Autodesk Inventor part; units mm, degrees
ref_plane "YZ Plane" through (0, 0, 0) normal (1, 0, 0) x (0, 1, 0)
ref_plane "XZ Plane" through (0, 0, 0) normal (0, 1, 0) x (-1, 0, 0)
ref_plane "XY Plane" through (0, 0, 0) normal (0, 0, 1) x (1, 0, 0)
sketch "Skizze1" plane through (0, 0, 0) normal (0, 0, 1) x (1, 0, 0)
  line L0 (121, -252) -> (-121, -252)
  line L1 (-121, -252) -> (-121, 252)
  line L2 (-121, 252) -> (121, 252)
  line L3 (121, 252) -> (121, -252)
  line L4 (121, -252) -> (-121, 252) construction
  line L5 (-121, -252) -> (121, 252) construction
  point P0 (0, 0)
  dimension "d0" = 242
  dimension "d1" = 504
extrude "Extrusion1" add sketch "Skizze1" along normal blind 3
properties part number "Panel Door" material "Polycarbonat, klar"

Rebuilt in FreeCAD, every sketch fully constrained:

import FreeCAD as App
import Part
import Sketcher

V = App.Vector

doc = App.newDocument("Part")
params = doc.addObject("Spreadsheet::Sheet", "Params")
for row, (alias, value) in enumerate([
    ("sketch1_width", "242 mm"),
    ("sketch1_height", "504 mm"),
    ("pad1_length", "3 mm"),
], start=1):
    params.set(f"A{row}", alias)
    params.set(f"B{row}", "=" + value)
    params.setAlias(f"B{row}", alias)

body = doc.addObject("PartDesign::Body", "Body")

# Sketch on XY plane
sketch1 = body.newObject("Sketcher::SketchObject", "Sketch")
sketch1.AttachmentSupport = (doc.getObject("XY_Plane"), [""])
sketch1.MapMode = "FlatFace"
sketch1.addGeometry([
    Part.LineSegment(V(-121, -252, 0), V(121, -252, 0)),
    Part.LineSegment(V(121, -252, 0), V(121, 252, 0)),
    Part.LineSegment(V(121, 252, 0), V(-121, 252, 0)),
    Part.LineSegment(V(-121, 252, 0), V(-121, -252, 0)),
], False)
sketch1.addConstraint([
    Sketcher.Constraint("Coincident", 0, 2, 1, 1),
    Sketcher.Constraint("Coincident", 1, 2, 2, 1),
    Sketcher.Constraint("Coincident", 2, 2, 3, 1),
    Sketcher.Constraint("Coincident", 3, 2, 0, 1),
    Sketcher.Constraint("Horizontal", 0),
    Sketcher.Constraint("Vertical", 1),
    Sketcher.Constraint("Horizontal", 2),
    Sketcher.Constraint("Vertical", 3),
    Sketcher.Constraint("Symmetric", 0, 2, 2, 2, -1, 1),
    Sketcher.Constraint("DistanceX", 0, 1, 0, 2, 242.0),
    Sketcher.Constraint("DistanceY", 1, 1, 1, 2, 504.0),
])
sketch1.setExpression("Constraints[9]", "Params.sketch1_width")
sketch1.setExpression("Constraints[10]", "Params.sketch1_height")
pad1 = body.newObject("PartDesign::Pad", "Pad")
pad1.Profile = sketch1
pad1.setExpression("Length", "Params.pad1_length")

doc.recompute()
